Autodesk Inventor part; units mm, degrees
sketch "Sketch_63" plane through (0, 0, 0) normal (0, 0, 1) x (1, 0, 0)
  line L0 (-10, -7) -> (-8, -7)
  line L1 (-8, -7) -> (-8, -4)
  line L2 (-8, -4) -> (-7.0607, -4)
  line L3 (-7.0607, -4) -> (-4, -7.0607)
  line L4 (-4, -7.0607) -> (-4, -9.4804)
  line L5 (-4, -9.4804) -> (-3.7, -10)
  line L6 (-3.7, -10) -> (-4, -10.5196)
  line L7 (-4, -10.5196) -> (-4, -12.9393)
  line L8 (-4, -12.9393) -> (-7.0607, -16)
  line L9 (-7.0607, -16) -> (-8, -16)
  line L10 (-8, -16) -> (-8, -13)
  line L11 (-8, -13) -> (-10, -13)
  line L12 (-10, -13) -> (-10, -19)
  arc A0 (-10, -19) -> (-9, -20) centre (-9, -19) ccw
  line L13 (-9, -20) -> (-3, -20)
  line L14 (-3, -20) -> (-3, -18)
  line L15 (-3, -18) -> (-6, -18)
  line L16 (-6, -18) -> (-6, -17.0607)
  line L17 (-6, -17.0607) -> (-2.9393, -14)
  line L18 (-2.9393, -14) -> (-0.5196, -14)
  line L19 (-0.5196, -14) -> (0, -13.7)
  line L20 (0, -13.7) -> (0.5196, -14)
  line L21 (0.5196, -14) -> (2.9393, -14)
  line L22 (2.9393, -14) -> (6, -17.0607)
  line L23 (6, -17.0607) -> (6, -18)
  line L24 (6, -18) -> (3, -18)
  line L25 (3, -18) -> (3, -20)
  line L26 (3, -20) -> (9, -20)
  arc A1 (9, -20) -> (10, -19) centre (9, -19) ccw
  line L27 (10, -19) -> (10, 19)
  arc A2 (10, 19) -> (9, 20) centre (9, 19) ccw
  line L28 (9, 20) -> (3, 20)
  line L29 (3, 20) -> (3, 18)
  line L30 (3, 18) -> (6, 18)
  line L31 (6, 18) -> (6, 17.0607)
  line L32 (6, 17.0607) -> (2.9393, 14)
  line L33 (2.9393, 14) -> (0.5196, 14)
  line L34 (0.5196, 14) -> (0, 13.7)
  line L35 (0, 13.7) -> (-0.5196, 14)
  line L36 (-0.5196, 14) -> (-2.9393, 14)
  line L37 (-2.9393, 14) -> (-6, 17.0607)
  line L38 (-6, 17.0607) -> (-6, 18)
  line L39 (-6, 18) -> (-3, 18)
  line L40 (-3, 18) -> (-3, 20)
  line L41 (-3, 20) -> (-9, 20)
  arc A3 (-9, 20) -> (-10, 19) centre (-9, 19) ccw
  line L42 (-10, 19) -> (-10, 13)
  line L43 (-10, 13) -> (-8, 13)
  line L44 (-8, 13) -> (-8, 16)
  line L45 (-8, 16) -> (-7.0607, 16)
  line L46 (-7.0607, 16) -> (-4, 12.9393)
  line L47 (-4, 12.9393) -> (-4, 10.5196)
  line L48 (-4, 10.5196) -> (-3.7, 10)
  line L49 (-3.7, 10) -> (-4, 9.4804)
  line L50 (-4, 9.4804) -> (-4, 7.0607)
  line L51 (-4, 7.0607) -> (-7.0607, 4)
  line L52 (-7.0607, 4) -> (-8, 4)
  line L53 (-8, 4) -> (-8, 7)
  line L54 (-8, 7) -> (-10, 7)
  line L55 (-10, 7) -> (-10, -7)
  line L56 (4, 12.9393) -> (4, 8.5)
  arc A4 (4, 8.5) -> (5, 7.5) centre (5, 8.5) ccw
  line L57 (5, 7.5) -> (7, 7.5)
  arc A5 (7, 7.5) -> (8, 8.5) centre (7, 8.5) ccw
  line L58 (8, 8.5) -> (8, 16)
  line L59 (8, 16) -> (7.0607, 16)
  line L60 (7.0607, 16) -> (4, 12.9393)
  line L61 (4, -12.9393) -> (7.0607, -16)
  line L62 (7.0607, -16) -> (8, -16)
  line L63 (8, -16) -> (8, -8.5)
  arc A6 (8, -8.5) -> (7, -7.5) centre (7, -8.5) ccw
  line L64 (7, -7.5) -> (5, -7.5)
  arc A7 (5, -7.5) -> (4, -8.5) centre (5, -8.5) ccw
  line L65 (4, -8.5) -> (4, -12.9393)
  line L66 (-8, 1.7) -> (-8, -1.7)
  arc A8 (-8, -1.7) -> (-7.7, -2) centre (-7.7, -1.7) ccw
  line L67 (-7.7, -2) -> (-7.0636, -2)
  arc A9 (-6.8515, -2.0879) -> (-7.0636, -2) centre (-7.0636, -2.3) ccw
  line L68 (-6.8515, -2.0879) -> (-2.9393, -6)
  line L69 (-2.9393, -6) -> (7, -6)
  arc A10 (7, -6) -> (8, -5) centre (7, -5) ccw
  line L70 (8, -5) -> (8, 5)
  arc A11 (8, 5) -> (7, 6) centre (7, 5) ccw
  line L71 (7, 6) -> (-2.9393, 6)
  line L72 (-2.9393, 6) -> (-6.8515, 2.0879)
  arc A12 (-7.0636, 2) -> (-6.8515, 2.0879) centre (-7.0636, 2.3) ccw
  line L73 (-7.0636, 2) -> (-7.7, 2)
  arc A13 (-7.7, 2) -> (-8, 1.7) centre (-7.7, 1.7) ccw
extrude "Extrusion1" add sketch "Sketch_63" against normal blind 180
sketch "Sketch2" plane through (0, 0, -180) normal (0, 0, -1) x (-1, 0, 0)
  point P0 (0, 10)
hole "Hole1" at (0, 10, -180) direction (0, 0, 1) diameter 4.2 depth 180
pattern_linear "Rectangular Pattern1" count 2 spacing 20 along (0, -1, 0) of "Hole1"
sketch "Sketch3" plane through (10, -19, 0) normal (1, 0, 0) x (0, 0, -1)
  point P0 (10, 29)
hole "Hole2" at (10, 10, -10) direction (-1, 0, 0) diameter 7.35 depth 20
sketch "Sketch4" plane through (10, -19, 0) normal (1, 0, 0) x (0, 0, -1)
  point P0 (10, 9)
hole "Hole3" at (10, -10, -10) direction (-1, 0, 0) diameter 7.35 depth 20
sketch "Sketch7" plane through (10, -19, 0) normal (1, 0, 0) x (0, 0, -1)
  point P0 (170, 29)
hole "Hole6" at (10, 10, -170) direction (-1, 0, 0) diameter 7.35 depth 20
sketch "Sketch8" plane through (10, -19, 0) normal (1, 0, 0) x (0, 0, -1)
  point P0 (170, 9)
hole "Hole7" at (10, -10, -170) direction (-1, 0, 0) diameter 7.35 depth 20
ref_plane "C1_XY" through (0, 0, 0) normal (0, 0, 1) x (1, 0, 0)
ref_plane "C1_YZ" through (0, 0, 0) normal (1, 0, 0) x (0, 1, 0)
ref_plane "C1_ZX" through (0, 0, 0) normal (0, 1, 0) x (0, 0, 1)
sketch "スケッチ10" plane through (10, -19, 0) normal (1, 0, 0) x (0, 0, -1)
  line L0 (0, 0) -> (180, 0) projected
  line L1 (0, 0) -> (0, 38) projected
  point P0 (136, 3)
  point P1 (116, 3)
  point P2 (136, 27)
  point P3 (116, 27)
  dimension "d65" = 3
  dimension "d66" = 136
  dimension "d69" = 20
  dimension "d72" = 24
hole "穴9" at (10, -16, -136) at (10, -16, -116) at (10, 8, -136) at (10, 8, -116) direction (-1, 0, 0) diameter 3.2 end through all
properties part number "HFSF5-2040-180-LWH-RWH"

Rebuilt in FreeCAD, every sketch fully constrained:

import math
import FreeCAD as App
import Part
import Sketcher
from FreeCAD import Vector
Q = App.Units.Quantity

doc = App.newDocument("Part")
body = doc.addObject("PartDesign::Body", "Body")

# Sketch on XY plane
sketch1 = body.newObject("Sketcher::SketchObject", "Sketch")
sketch1.AttachmentSupport = (doc.getObject("XY_Plane"), [""])
sketch1.MapMode = "FlatFace"
sketch1.addGeometry([
    Part.LineSegment(Vector(-10, 7, 0), Vector(-10, -7, 0)),  # 0
    Part.LineSegment(Vector(-10, -7, 0), Vector(-8, -7, 0)),  # 1
    Part.LineSegment(Vector(-8, -7, 0), Vector(-8, -4, 0)),  # 2
    Part.LineSegment(Vector(-8, -4, 0), Vector(-7.06, -4, 0)),  # 3
    Part.LineSegment(Vector(-7.06, -4, 0), Vector(-4, -7.06, 0)),  # 4
    Part.LineSegment(Vector(-4, -7.06, 0), Vector(-4, -9.48, 0)),  # 5
    Part.LineSegment(Vector(-4, -9.48, 0), Vector(-3.7, -10, 0)),  # 6
    Part.LineSegment(Vector(-3.7, -10, 0), Vector(-4, -10.52, 0)),  # 7
    Part.LineSegment(Vector(-4, -10.52, 0), Vector(-4, -12.94, 0)),  # 8
    Part.LineSegment(Vector(-4, -12.94, 0), Vector(-7.06, -16, 0)),  # 9
    Part.LineSegment(Vector(-7.06, -16, 0), Vector(-8, -16, 0)),  # 10
    Part.LineSegment(Vector(-8, -16, 0), Vector(-8, -13, 0)),  # 11
    Part.LineSegment(Vector(-8, -13, 0), Vector(-10, -13, 0)),  # 12
    Part.LineSegment(Vector(-10, -13, 0), Vector(-10, -19, 0)),  # 13
    Part.ArcOfCircle(Part.Circle(Vector(-9, -19, 0), Vector(0, 0, 1), 1), math.radians(180), math.radians(270)),  # 14
    Part.LineSegment(Vector(-9, -20, 0), Vector(-3, -20, 0)),  # 15
    Part.LineSegment(Vector(-3, -20, 0), Vector(-3, -18, 0)),  # 16
    Part.LineSegment(Vector(-3, -18, 0), Vector(-6, -18, 0)),  # 17
    Part.LineSegment(Vector(-6, -18, 0), Vector(-6, -17.06, 0)),  # 18
    Part.LineSegment(Vector(-6, -17.06, 0), Vector(-2.94, -14, 0)),  # 19
    Part.LineSegment(Vector(-2.94, -14, 0), Vector(-0.52, -14, 0)),  # 20
    Part.LineSegment(Vector(-0.52, -14, 0), Vector(0, -13.7, 0)),  # 21
    Part.LineSegment(Vector(0, -13.7, 0), Vector(0.52, -14, 0)),  # 22
    Part.LineSegment(Vector(0.52, -14, 0), Vector(2.94, -14, 0)),  # 23
    Part.LineSegment(Vector(2.94, -14, 0), Vector(6, -17.06, 0)),  # 24
    Part.LineSegment(Vector(6, -17.06, 0), Vector(6, -18, 0)),  # 25
    Part.LineSegment(Vector(6, -18, 0), Vector(3, -18, 0)),  # 26
    Part.LineSegment(Vector(3, -18, 0), Vector(3, -20, 0)),  # 27
    Part.LineSegment(Vector(3, -20, 0), Vector(9, -20, 0)),  # 28
    Part.ArcOfCircle(Part.Circle(Vector(9, -19, 0), Vector(0, 0, 1), 1), math.radians(-90), math.radians(0)),  # 29
    Part.LineSegment(Vector(10, -19, 0), Vector(10, 19, 0)),  # 30
    Part.ArcOfCircle(Part.Circle(Vector(9, 19, 0), Vector(0, 0, 1), 1), math.radians(0), math.radians(90)),  # 31
    Part.LineSegment(Vector(9, 20, 0), Vector(3, 20, 0)),  # 32
    Part.LineSegment(Vector(3, 20, 0), Vector(3, 18, 0)),  # 33
    Part.LineSegment(Vector(3, 18, 0), Vector(6, 18, 0)),  # 34
    Part.LineSegment(Vector(6, 18, 0), Vector(6, 17.06, 0)),  # 35
    Part.LineSegment(Vector(6, 17.06, 0), Vector(2.94, 14, 0)),  # 36
    Part.LineSegment(Vector(2.94, 14, 0), Vector(0.52, 14, 0)),  # 37
    Part.LineSegment(Vector(0.52, 14, 0), Vector(0, 13.7, 0)),  # 38
    Part.LineSegment(Vector(0, 13.7, 0), Vector(-0.52, 14, 0)),  # 39
    Part.LineSegment(Vector(-0.52, 14, 0), Vector(-2.94, 14, 0)),  # 40
    Part.LineSegment(Vector(-2.94, 14, 0), Vector(-6, 17.06, 0)),  # 41
    Part.LineSegment(Vector(-6, 17.06, 0), Vector(-6, 18, 0)),  # 42
    Part.LineSegment(Vector(-6, 18, 0), Vector(-3, 18, 0)),  # 43
    Part.LineSegment(Vector(-3, 18, 0), Vector(-3, 20, 0)),  # 44
    Part.LineSegment(Vector(-3, 20, 0), Vector(-9, 20, 0)),  # 45
    Part.ArcOfCircle(Part.Circle(Vector(-9, 19, 0), Vector(0, 0, 1), 1), math.radians(90), math.radians(180)),  # 46
    Part.LineSegment(Vector(-10, 19, 0), Vector(-10, 13, 0)),  # 47
    Part.LineSegment(Vector(-10, 13, 0), Vector(-8, 13, 0)),  # 48
    Part.LineSegment(Vector(-8, 13, 0), Vector(-8, 16, 0)),  # 49
    Part.LineSegment(Vector(-8, 16, 0), Vector(-7.06, 16, 0)),  # 50
    Part.LineSegment(Vector(-7.06, 16, 0), Vector(-4, 12.94, 0)),  # 51
    Part.LineSegment(Vector(-4, 12.94, 0), Vector(-4, 10.52, 0)),  # 52
    Part.LineSegment(Vector(-4, 10.52, 0), Vector(-3.7, 10, 0)),  # 53
    Part.LineSegment(Vector(-3.7, 10, 0), Vector(-4, 9.48, 0)),  # 54
    Part.LineSegment(Vector(-4, 9.48, 0), Vector(-4, 7.06, 0)),  # 55
    Part.LineSegment(Vector(-4, 7.06, 0), Vector(-7.06, 4, 0)),  # 56
    Part.LineSegment(Vector(-7.06, 4, 0), Vector(-8, 4, 0)),  # 57
    Part.LineSegment(Vector(-8, 4, 0), Vector(-8, 7, 0)),  # 58
    Part.LineSegment(Vector(-8, 7, 0), Vector(-10, 7, 0)),  # 59
    Part.LineSegment(Vector(7.06, -16, 0), Vector(4, -12.94, 0)),  # 60
    Part.LineSegment(Vector(4, -12.94, 0), Vector(4, -8.5, 0)),  # 61
    Part.ArcOfCircle(Part.Circle(Vector(5, -8.5, 0), Vector(0, 0, 1), 1), math.radians(90), math.radians(180)),  # 62
    Part.LineSegment(Vector(5, -7.5, 0), Vector(7, -7.5, 0)),  # 63
    Part.ArcOfCircle(Part.Circle(Vector(7, -8.5, 0), Vector(0, 0, 1), 1), math.radians(0), math.radians(90)),  # 64
    Part.LineSegment(Vector(8, -8.5, 0), Vector(8, -16, 0)),  # 65
    Part.LineSegment(Vector(8, -16, 0), Vector(7.06, -16, 0)),  # 66
    Part.LineSegment(Vector(-8, -1.7, 0), Vector(-8, 1.7, 0)),  # 67
    Part.ArcOfCircle(Part.Circle(Vector(-7.7, 1.7, 0), Vector(0, 0, 1), 0.3), math.radians(90), math.radians(180)),  # 68
    Part.LineSegment(Vector(-7.7, 2, 0), Vector(-7.06, 2, 0)),  # 69
    Part.ArcOfCircle(Part.Circle(Vector(-7.06, 2.3, 0), Vector(0, 0, 1), 0.3), math.radians(-90), math.radians(-45)),  # 70
    Part.LineSegment(Vector(-6.85, 2.09, 0), Vector(-2.94, 6, 0)),  # 71
    Part.LineSegment(Vector(-2.94, 6, 0), Vector(7, 6, 0)),  # 72
    Part.ArcOfCircle(Part.Circle(Vector(7, 5, 0), Vector(0, 0, 1), 1), math.radians(0), math.radians(90)),  # 73
    Part.LineSegment(Vector(8, 5, 0), Vector(8, -5, 0)),  # 74
    Part.ArcOfCircle(Part.Circle(Vector(7, -5, 0), Vector(0, 0, 1), 1), math.radians(-90), math.radians(0)),  # 75
    Part.LineSegment(Vector(7, -6, 0), Vector(-2.94, -6, 0)),  # 76
    Part.LineSegment(Vector(-2.94, -6, 0), Vector(-6.85, -2.09, 0)),  # 77
    Part.ArcOfCircle(Part.Circle(Vector(-7.06, -2.3, 0), Vector(0, 0, 1), 0.3), math.radians(45), math.radians(90)),  # 78
    Part.LineSegment(Vector(-7.06, -2, 0), Vector(-7.7, -2, 0)),  # 79
    Part.ArcOfCircle(Part.Circle(Vector(-7.7, -1.7, 0), Vector(0, 0, 1), 0.3), math.radians(180), math.radians(270)),  # 80
    Part.LineSegment(Vector(4, 8.5, 0), Vector(4, 12.94, 0)),  # 81
    Part.LineSegment(Vector(4, 12.94, 0), Vector(7.06, 16, 0)),  # 82
    Part.LineSegment(Vector(7.06, 16, 0), Vector(8, 16, 0)),  # 83
    Part.LineSegment(Vector(8, 16, 0), Vector(8, 8.5, 0)),  # 84
    Part.ArcOfCircle(Part.Circle(Vector(7, 8.5, 0), Vector(0, 0, 1), 1), math.radians(-90), math.radians(0)),  # 85
    Part.LineSegment(Vector(7, 7.5, 0), Vector(5, 7.5, 0)),  # 86
    Part.ArcOfCircle(Part.Circle(Vector(5, 8.5, 0), Vector(0, 0, 1), 1), math.radians(180), math.radians(270)),  # 87
], False)
sketch1.addConstraint([
    Sketcher.Constraint("Coincident", 0, 2, 1, 1),
    Sketcher.Constraint("Coincident", 1, 2, 2, 1),
    Sketcher.Constraint("Coincident", 2, 2, 3, 1),
    Sketcher.Constraint("Coincident", 3, 2, 4, 1),
    Sketcher.Constraint("Coincident", 4, 2, 5, 1),
    Sketcher.Constraint("Coincident", 5, 2, 6, 1),
    Sketcher.Constraint("Coincident", 6, 2, 7, 1),
    Sketcher.Constraint("Coincident", 7, 2, 8, 1),
    Sketcher.Constraint("Coincident", 8, 2, 9, 1),
    Sketcher.Constraint("Coincident", 9, 2, 10, 1),
    Sketcher.Constraint("Coincident", 10, 2, 11, 1),
    Sketcher.Constraint("Coincident", 11, 2, 12, 1),
    Sketcher.Constraint("Coincident", 12, 2, 13, 1),
    Sketcher.Constraint("Tangent", 13, 2, 14, 1),
    Sketcher.Constraint("Tangent", 14, 2, 15, 1),
    Sketcher.Constraint("Coincident", 15, 2, 16, 1),
    Sketcher.Constraint("Coincident", 16, 2, 17, 1),
    Sketcher.Constraint("Coincident", 17, 2, 18, 1),
    Sketcher.Constraint("Coincident", 18, 2, 19, 1),
    Sketcher.Constraint("Coincident", 19, 2, 20, 1),
    Sketcher.Constraint("Coincident", 20, 2, 21, 1),
    Sketcher.Constraint("Coincident", 21, 2, 22, 1),
    Sketcher.Constraint("Coincident", 22, 2, 23, 1),
    Sketcher.Constraint("Coincident", 23, 2, 24, 1),
    Sketcher.Constraint("Coincident", 24, 2, 25, 1),
    Sketcher.Constraint("Coincident", 25, 2, 26, 1),
    Sketcher.Constraint("Coincident", 26, 2, 27, 1),
    Sketcher.Constraint("Coincident", 27, 2, 28, 1),
    Sketcher.Constraint("Tangent", 28, 2, 29, 1),
    Sketcher.Constraint("Tangent", 29, 2, 30, 1),
    Sketcher.Constraint("Tangent", 30, 2, 31, 1),
    Sketcher.Constraint("Tangent", 31, 2, 32, 1),
    Sketcher.Constraint("Coincident", 32, 2, 33, 1),
    Sketcher.Constraint("Coincident", 33, 2, 34, 1),
    Sketcher.Constraint("Coincident", 34, 2, 35, 1),
    Sketcher.Constraint("Coincident", 35, 2, 36, 1),
    Sketcher.Constraint("Coincident", 36, 2, 37, 1),
    Sketcher.Constraint("Coincident", 37, 2, 38, 1),
    Sketcher.Constraint("Coincident", 38, 2, 39, 1),
    Sketcher.Constraint("Coincident", 39, 2, 40, 1),
    Sketcher.Constraint("Coincident", 40, 2, 41, 1),
    Sketcher.Constraint("Coincident", 41, 2, 42, 1),
    Sketcher.Constraint("Coincident", 42, 2, 43, 1),
    Sketcher.Constraint("Coincident", 43, 2, 44, 1),
    Sketcher.Constraint("Coincident", 44, 2, 45, 1),
    Sketcher.Constraint("Tangent", 45, 2, 46, 1),
    Sketcher.Constraint("Tangent", 46, 2, 47, 1),
    Sketcher.Constraint("Coincident", 47, 2, 48, 1),
    Sketcher.Constraint("Coincident", 48, 2, 49, 1),
    Sketcher.Constraint("Coincident", 49, 2, 50, 1),
    Sketcher.Constraint("Coincident", 50, 2, 51, 1),
    Sketcher.Constraint("Coincident", 51, 2, 52, 1),
    Sketcher.Constraint("Coincident", 52, 2, 53, 1),
    Sketcher.Constraint("Coincident", 53, 2, 54, 1),
    Sketcher.Constraint("Coincident", 54, 2, 55, 1),
    Sketcher.Constraint("Coincident", 55, 2, 56, 1),
    Sketcher.Constraint("Coincident", 56, 2, 57, 1),
    Sketcher.Constraint("Coincident", 57, 2, 58, 1),
    Sketcher.Constraint("Coincident", 58, 2, 59, 1),
    Sketcher.Constraint("Coincident", 59, 2, 0, 1),
    Sketcher.Constraint("Coincident", 60, 2, 61, 1),
    Sketcher.Constraint("Tangent", 61, 2, 62, 2),
    Sketcher.Constraint("Tangent", 62, 1, 63, 1),
    Sketcher.Constraint("Tangent", 63, 2, 64, 2),
    Sketcher.Constraint("Tangent", 64, 1, 65, 1),
    Sketcher.Constraint("Coincident", 65, 2, 66, 1),
    Sketcher.Constraint("Coincident", 66, 2, 60, 1),
    Sketcher.Constraint("Tangent", 67, 2, 68, 2),
    Sketcher.Constraint("Tangent", 68, 1, 69, 1),
    Sketcher.Constraint("Tangent", 69, 2, 70, 1),
    Sketcher.Constraint("Tangent", 70, 2, 71, 1),
    Sketcher.Constraint("Coincident", 71, 2, 72, 1),
    Sketcher.Constraint("Tangent", 72, 2, 73, 2),
    Sketcher.Constraint("Tangent", 73, 1, 74, 1),
    Sketcher.Constraint("Tangent", 74, 2, 75, 2),
    Sketcher.Constraint("Tangent", 75, 1, 76, 1),
    Sketcher.Constraint("Coincident", 76, 2, 77, 1),
    Sketcher.Constraint("Tangent", 77, 2, 78, 1),
    Sketcher.Constraint("Tangent", 78, 2, 79, 1),
    Sketcher.Constraint("Tangent", 79, 2, 80, 2),
    Sketcher.Constraint("Tangent", 80, 1, 67, 1),
    Sketcher.Constraint("Coincident", 81, 2, 82, 1),
    Sketcher.Constraint("Coincident", 82, 2, 83, 1),
    Sketcher.Constraint("Coincident", 83, 2, 84, 1),
    Sketcher.Constraint("Tangent", 84, 2, 85, 2),
    Sketcher.Constraint("Tangent", 85, 1, 86, 1),
    Sketcher.Constraint("Tangent", 86, 2, 87, 2),
    Sketcher.Constraint("Tangent", 87, 1, 81, 1),
    Sketcher.Constraint("Vertical", 0),
    Sketcher.Constraint("Horizontal", 1),
    Sketcher.Constraint("Vertical", 2),
    Sketcher.Constraint("Horizontal", 3),
    Sketcher.Constraint("Vertical", 5),
    Sketcher.Constraint("Vertical", 8),
    Sketcher.Constraint("Horizontal", 10),
    Sketcher.Constraint("Vertical", 11),
    Sketcher.Constraint("Horizontal", 12),
    Sketcher.Constraint("Vertical", 13),
    Sketcher.Constraint("Horizontal", 15),
    Sketcher.Constraint("Vertical", 16),
    Sketcher.Constraint("Horizontal", 17),
    Sketcher.Constraint("Vertical", 18),
    Sketcher.Constraint("Horizontal", 20),
    Sketcher.Constraint("Horizontal", 23),
    Sketcher.Constraint("Vertical", 25),
    Sketcher.Constraint("Horizontal", 26),
    Sketcher.Constraint("Vertical", 27),
    Sketcher.Constraint("Horizontal", 28),
    Sketcher.Constraint("Vertical", 30),
    Sketcher.Constraint("Horizontal", 32),
    Sketcher.Constraint("Vertical", 33),
    Sketcher.Constraint("Horizontal", 34),
    Sketcher.Constraint("Vertical", 35),
    Sketcher.Constraint("Horizontal", 37),
    Sketcher.Constraint("Horizontal", 40),
    Sketcher.Constraint("Vertical", 42),
    Sketcher.Constraint("Horizontal", 43),
    Sketcher.Constraint("Vertical", 44),
    Sketcher.Constraint("Horizontal", 45),
    Sketcher.Constraint("Vertical", 47),
    Sketcher.Constraint("Horizontal", 48),
    Sketcher.Constraint("Vertical", 49),
    Sketcher.Constraint("Horizontal", 50),
    Sketcher.Constraint("Vertical", 52),
    Sketcher.Constraint("Vertical", 55),
    Sketcher.Constraint("Horizontal", 57),
    Sketcher.Constraint("Vertical", 58),
    Sketcher.Constraint("Horizontal", 59),
    Sketcher.Constraint("Vertical", 61),
    Sketcher.Constraint("Horizontal", 63),
    Sketcher.Constraint("Vertical", 65),
    Sketcher.Constraint("Horizontal", 66),
    Sketcher.Constraint("Vertical", 67),
    Sketcher.Constraint("Horizontal", 69),
    Sketcher.Constraint("Horizontal", 72),
    Sketcher.Constraint("Vertical", 74),
    Sketcher.Constraint("Horizontal", 76),
    Sketcher.Constraint("Horizontal", 79),
    Sketcher.Constraint("Vertical", 81),
    Sketcher.Constraint("Horizontal", 83),
    Sketcher.Constraint("Vertical", 84),
    Sketcher.Constraint("Horizontal", 86),
    Sketcher.Constraint("Equal", 14, 29),
    Sketcher.Constraint("Equal", 29, 31),
    Sketcher.Constraint("Equal", 31, 46),
    Sketcher.Constraint("Equal", 46, 62),
    Sketcher.Constraint("Equal", 62, 64),
    Sketcher.Constraint("Equal", 68, 70),
    Sketcher.Constraint("Equal", 64, 73),
    Sketcher.Constraint("Equal", 73, 75),
    Sketcher.Constraint("Equal", 70, 78),
    Sketcher.Constraint("Equal", 78, 80),
    Sketcher.Constraint("Equal", 75, 85),
    Sketcher.Constraint("Equal", 85, 87),
    Sketcher.Constraint("Symmetric", 14, 3, 31, 3, -1, 1),
    Sketcher.Constraint("Symmetric", 29, 3, 46, 3, -1, 1),
    Sketcher.Constraint("Symmetric", 16, 2, 33, 2, -1, 1),
    Sketcher.Constraint("Symmetric", 18, 2, 35, 2, -1, 1),
    Sketcher.Constraint("Symmetric", 19, 2, 36, 2, -1, 1),
    Sketcher.Constraint("Symmetric", 21, 2, 38, 2, -1, 1),
    Sketcher.Constraint("Symmetric", 22, 2, 39, 2, -1, 1),
    Sketcher.Constraint("Symmetric", 24, 2, 41, 2, -1, 1),
    Sketcher.Constraint("Symmetric", 26, 2, 43, 2, -1, 1),
    Sketcher.Constraint("Symmetric", 51, 2, 60, 2, -1, 1),
    Sketcher.Constraint("Symmetric", 49, 2, 65, 2, -1, 1),
    Sketcher.Constraint("Symmetric", 8, 2, 81, 2, -1, 1),
    Sketcher.Constraint("Symmetric", 9, 2, 82, 2, -1, 1),
    Sketcher.Constraint("Symmetric", 20, 2, 22, 2, -2),
    Sketcher.Constraint("Symmetric", 18, 2, 24, 2, -2),
    Sketcher.Constraint("Symmetric", 16, 2, 26, 2, -2),
    Sketcher.Constraint("Symmetric", 8, 2, 60, 2, -2),
    Sketcher.Constraint("Symmetric", 10, 2, 65, 2, -2),
    Sketcher.Constraint("Symmetric", 70, 3, 78, 3, -1),
    Sketcher.Constraint("Symmetric", 64, 3, 85, 3, -1),
    Sketcher.Constraint("Symmetric", 6, 2, 53, 2, -1),
    Sketcher.Constraint("Symmetric", 5, 2, 54, 2, -1),
    Sketcher.Constraint("Symmetric", 3, 2, 56, 2, -1),
    Sketcher.Constraint("Symmetric", 1, 2, 58, 2, -1),
    Sketcher.Constraint("Symmetric", 71, 2, 76, 2, -1),
    Sketcher.Constraint("PointOnObject", 21, 2, -2),
    Sketcher.Constraint("Perpendicular", 4, 9),
    Sketcher.Constraint("Parallel", 9, 19),
    Sketcher.Constraint("Perpendicular", 6, 21),
    Sketcher.Constraint("Perpendicular", 7, 22),
    Sketcher.Constraint("Perpendicular", 19, 24),
    Sketcher.Constraint("Parallel", 21, 38),
    Sketcher.Constraint("Perpendicular", 36, 41),
    Sketcher.Constraint("Parallel", 41, 51),
    Sketcher.Constraint("Perpendicular", 38, 53),
    Sketcher.Constraint("Perpendicular", 51, 56),
    Sketcher.Constraint("Perpendicular", 56, 60),
    Sketcher.Constraint("Perpendicular", 60, 71),
    Sketcher.Constraint("Perpendicular", 71, 77),
    Sketcher.Constraint("Horizontal", 14, 3, 29, 3),
    Sketcher.Constraint("Vertical", 64, 3, 73, 3),
    Sketcher.Constraint("Vertical", 5, 2, 7, 2),
    Sketcher.Constraint("Vertical", 3, 2, 9, 2),
    Sketcher.Constraint("Vertical", 2, 2, 10, 2),
    Sketcher.Constraint("Vertical", 0, 2, 12, 2),
    Sketcher.Constraint("Vertical", 58, 2, 67, 2),
    Sketcher.Constraint("Vertical", 40, 2, 71, 2),
    Sketcher.Constraint("Equal", 59, 63),
    Sketcher.Constraint("Equal", 43, 2),
    Sketcher.Constraint("Equal", 40, 5),
    Sketcher.Constraint("Equal", 5, 8),
    Sketcher.Constraint("Equal", 2, 11),
    Sketcher.Constraint("Equal", 45, 13),
    Sketcher.Constraint("Equal", 86, 16),
    Sketcher.Constraint("Equal", 83, 18),
    Sketcher.Constraint("Equal", 13, 47),
    Sketcher.Constraint("Equal", 9, 19),
    Sketcher.Constraint("Equal", 7, 21),
    Sketcher.Constraint("Radius", 14, Q("1 mm")),
    Sketcher.Constraint("Radius", 68, Q("0.3 mm")),
    Sketcher.Constraint("DistanceX", 1, 1, 1, 2, Q("2 mm")),
    Sketcher.Constraint("DistanceX", 15, 1, 15, 2, Q("6 mm")),
    Sketcher.Constraint("DistanceX", 17, 2, 17, 1, Q("3 mm")),
    Sketcher.Constraint("DistanceY", 0, 2, 0, 1, Q("14 mm")),
    Sketcher.Constraint("DistanceY", 30, 1, 30, 2, Q("38 mm")),
    Sketcher.Constraint("DistanceY", 74, 2, 74, 1, Q("10 mm")),
    Sketcher.Constraint("Angle", 6, Q("-59.9993 deg")),
    Sketcher.Constraint("DistanceY", 65, 2, 65, 1, Q("7.5 mm")),
    Sketcher.Constraint("DistanceY", 67, 1, 67, 2, Q("3.4 mm")),
    Sketcher.Constraint("Distance", 6, Q("0.6 mm")),
    Sketcher.Constraint("DistanceX", 3, 1, 3, 2, Q("0.9393 mm")),
])
pad1 = body.newObject("PartDesign::Pad", "Pad")
pad1.Profile = sketch1
pad1.Length = 180
pad1.Reversed = True

# Sketch on XY plane
sketch2 = body.newObject("Sketcher::SketchObject", "Sketch001")
sketch2.AttachmentSupport = (doc.getObject("XY_Plane"), [""])
sketch2.MapMode = "FlatFace"
sketch2.AttachmentOffset = App.Placement(Vector(0, 0, -180), App.Rotation())
sketch2.addGeometry(Part.Circle(Vector(0, 10, 0), Vector(0, 0, 1), 2.1), False)
sketch2.addConstraint([
    Sketcher.Constraint("PointOnObject", 0, 3, -2),
    Sketcher.Constraint("Diameter", 0, Q("4.2 mm")),
    Sketcher.Constraint("DistanceY", -1, 1, 0, 3, Q("10 mm")),
])
doc.recompute()
hole = body.newObject("PartDesign::Hole", "Hole")
hole.Profile = sketch2
hole.ThreadType = "None"
hole.Diameter = 4.2
hole.DepthType = "Dimension"
hole.Depth = 180
hole.DrillPoint = "Flat"
hole.Reversed = True
doc.recompute()

linearpattern = body.newObject("PartDesign::LinearPattern", "LinearPattern")
linearpattern.Originals = [hole]
linearpattern.Direction = (doc.getObject("Y_Axis"), [""])
linearpattern.Mode = "offset"
linearpattern.Offset = 20
linearpattern.Occurrences = 2
linearpattern.Reversed = True
body.Tip = linearpattern

# Sketch on YZ plane
sketch3 = body.newObject("Sketcher::SketchObject", "Sketch002")
sketch3.AttachmentSupport = (doc.getObject("YZ_Plane"), [""])
sketch3.MapMode = "FlatFace"
sketch3.AttachmentOffset = App.Placement(Vector(0, 0, 10), App.Rotation())
sketch3.addGeometry(Part.Circle(Vector(10, -10, 0), Vector(0, 0, 1), 3.7), False)
sketch3.addConstraint([
    Sketcher.Constraint("Diameter", 0, Q("7.35 mm")),
    Sketcher.Constraint("DistanceX", -1, 1, 0, 3, Q("10 mm")),
    Sketcher.Constraint("DistanceY", 0, 3, -1, 1, Q("10 mm")),
])
doc.recompute()
hole2 = body.newObject("PartDesign::Hole", "Hole001")
hole2.Profile = sketch3
hole2.ThreadType = "None"
hole2.Diameter = 7.35
hole2.DepthType = "Dimension"
hole2.Depth = 20
hole2.DrillPoint = "Flat"

# Sketch on YZ plane
sketch4 = body.newObject("Sketcher::SketchObject", "Sketch003")
sketch4.AttachmentSupport = (doc.getObject("YZ_Plane"), [""])
sketch4.MapMode = "FlatFace"
sketch4.AttachmentOffset = App.Placement(Vector(0, 0, 10), App.Rotation())
sketch4.addGeometry(Part.Circle(Vector(-10, -10, 0), Vector(0, 0, 1), 3.7), False)
sketch4.addConstraint([
    Sketcher.Constraint("Diameter", 0, Q("7.35 mm")),
    Sketcher.Constraint("DistanceX", 0, 3, -1, 1, Q("10 mm")),
    Sketcher.Constraint("DistanceY", 0, 3, -1, 1, Q("10 mm")),
])
doc.recompute()
hole3 = body.newObject("PartDesign::Hole", "Hole002")
hole3.Profile = sketch4
hole3.ThreadType = "None"
hole3.Diameter = 7.35
hole3.DepthType = "Dimension"
hole3.Depth = 20
hole3.DrillPoint = "Flat"

# Sketch on YZ plane
sketch5 = body.newObject("Sketcher::SketchObject", "Sketch004")
sketch5.AttachmentSupport = (doc.getObject("YZ_Plane"), [""])
sketch5.MapMode = "FlatFace"
sketch5.AttachmentOffset = App.Placement(Vector(0, 0, 10), App.Rotation())
sketch5.addGeometry(Part.Circle(Vector(10, -170, 0), Vector(0, 0, 1), 3.7), False)
sketch5.addConstraint([
    Sketcher.Constraint("Diameter", 0, Q("7.35 mm")),
    Sketcher.Constraint("DistanceX", -1, 1, 0, 3, Q("10 mm")),
    Sketcher.Constraint("DistanceY", 0, 3, -1, 1, Q("170 mm")),
])
doc.recompute()
hole4 = body.newObject("PartDesign::Hole", "Hole003")
hole4.Profile = sketch5
hole4.ThreadType = "None"
hole4.Diameter = 7.35
hole4.DepthType = "Dimension"
hole4.Depth = 20
hole4.DrillPoint = "Flat"

# Sketch on YZ plane
sketch6 = body.newObject("Sketcher::SketchObject", "Sketch005")
sketch6.AttachmentSupport = (doc.getObject("YZ_Plane"), [""])
sketch6.MapMode = "FlatFace"
sketch6.AttachmentOffset = App.Placement(Vector(0, 0, 10), App.Rotation())
sketch6.addGeometry(Part.Circle(Vector(-10, -170, 0), Vector(0, 0, 1), 3.7), False)
sketch6.addConstraint([
    Sketcher.Constraint("Diameter", 0, Q("7.35 mm")),
    Sketcher.Constraint("DistanceX", 0, 3, -1, 1, Q("10 mm")),
    Sketcher.Constraint("DistanceY", 0, 3, -1, 1, Q("170 mm")),
])
doc.recompute()
hole5 = body.newObject("PartDesign::Hole", "Hole004")
hole5.Profile = sketch6
hole5.ThreadType = "None"
hole5.Diameter = 7.35
hole5.DepthType = "Dimension"
hole5.Depth = 20
hole5.DrillPoint = "Flat"

# Sketch on YZ plane
sketch7 = body.newObject("Sketcher::SketchObject", "Sketch006")
sketch7.AttachmentSupport = (doc.getObject("YZ_Plane"), [""])
sketch7.MapMode = "FlatFace"
sketch7.AttachmentOffset = App.Placement(Vector(0, 0, 10), App.Rotation())
sketch7.addGeometry([
    Part.Circle(Vector(-16, -136, 0), Vector(0, 0, 1), 1.6),
    Part.Circle(Vector(-16, -116, 0), Vector(0, 0, 1), 1.6),
    Part.Circle(Vector(8, -136, 0), Vector(0, 0, 1), 1.6),
    Part.Circle(Vector(8, -116, 0), Vector(0, 0, 1), 1.6),
], False)
sketch7.addConstraint([
    Sketcher.Constraint("Equal", 0, 1),
    Sketcher.Constraint("Equal", 1, 2),
    Sketcher.Constraint("Equal", 2, 3),
    Sketcher.Constraint("Horizontal", 0, 3, 2, 3),
    Sketcher.Constraint("Horizontal", 1, 3, 3, 3),
    Sketcher.Constraint("Vertical", 0, 3, 1, 3),
    Sketcher.Constraint("Vertical", 2, 3, 3, 3),
    Sketcher.Constraint("Diameter", 0, Q("3.2 mm")),
    Sketcher.Constraint("DistanceX", 0, 3, -1, 1, Q("16 mm")),
    Sketcher.Constraint("DistanceY", 0, 3, -1, 1, Q("136 mm")),
    Sketcher.Constraint("DistanceY", 1, 3, -1, 1, Q("116 mm")),
    Sketcher.Constraint("DistanceX", -1, 1, 2, 3, Q("8 mm")),
])
doc.recompute()
hole6 = body.newObject("PartDesign::Hole", "Hole005")
hole6.Profile = sketch7
hole6.ThreadType = "None"
hole6.Diameter = 3.2
hole6.DepthType = "ThroughAll"

doc.recompute()
